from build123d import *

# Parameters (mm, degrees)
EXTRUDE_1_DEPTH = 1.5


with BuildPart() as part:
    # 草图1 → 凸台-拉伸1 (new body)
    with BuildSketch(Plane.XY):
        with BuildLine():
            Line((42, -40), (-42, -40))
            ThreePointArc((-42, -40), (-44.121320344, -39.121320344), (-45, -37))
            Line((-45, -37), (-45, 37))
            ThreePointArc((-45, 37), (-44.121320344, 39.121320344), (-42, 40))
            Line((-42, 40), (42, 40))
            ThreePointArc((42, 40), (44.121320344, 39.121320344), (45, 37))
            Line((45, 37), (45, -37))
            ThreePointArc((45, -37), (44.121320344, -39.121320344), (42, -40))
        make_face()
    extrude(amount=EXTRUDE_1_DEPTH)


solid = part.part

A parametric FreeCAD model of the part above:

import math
import FreeCAD as App
import Part
import Sketcher
from FreeCAD import Vector
Q = App.Units.Quantity

doc = App.newDocument("Part")
body = doc.addObject("PartDesign::Body", "Body")

sketch1 = doc.addObject("Sketcher::SketchObject", "Sketch")
body.addObject(sketch1)
sketch1.AttachmentSupport = (doc.XY_Plane, [""])
sketch1.MapMode = "FlatFace"
sketch1.addGeometry([
    Part.LineSegment(Vector(-42, -40, 0), Vector(42, -40, 0)),
    Part.ArcOfCircle(Part.Circle(Vector(42, -37, 0), Vector(0, 0, 1), 3), math.radians(-90), math.radians(0)),
    Part.LineSegment(Vector(45, -37, 0), Vector(45, 37, 0)),
    Part.ArcOfCircle(Part.Circle(Vector(42, 37, 0), Vector(0, 0, 1), 3), math.radians(0), math.radians(90)),
    Part.LineSegment(Vector(42, 40, 0), Vector(-42, 40, 0)),
    Part.ArcOfCircle(Part.Circle(Vector(-42, 37, 0), Vector(0, 0, 1), 3), math.radians(90), math.radians(180)),
    Part.LineSegment(Vector(-45, 37, 0), Vector(-45, -37, 0)),
    Part.ArcOfCircle(Part.Circle(Vector(-42, -37, 0), Vector(0, 0, 1), 3), math.radians(180), math.radians(270)),
], False)
sketch1.addConstraint([
    Sketcher.Constraint("Tangent", 0, 2, 1, 1),
    Sketcher.Constraint("Tangent", 1, 2, 2, 1),
    Sketcher.Constraint("Tangent", 2, 2, 3, 1),
    Sketcher.Constraint("Tangent", 3, 2, 4, 1),
    Sketcher.Constraint("Tangent", 4, 2, 5, 1),
    Sketcher.Constraint("Tangent", 5, 2, 6, 1),
    Sketcher.Constraint("Tangent", 6, 2, 7, 1),
    Sketcher.Constraint("Tangent", 7, 2, 0, 1),
    Sketcher.Constraint("Horizontal", 0),
    Sketcher.Constraint("Vertical", 2),
    Sketcher.Constraint("Horizontal", 4),
    Sketcher.Constraint("Vertical", 6),
    Sketcher.Constraint("Equal", 1, 3),
    Sketcher.Constraint("Equal", 3, 5),
    Sketcher.Constraint("Equal", 5, 7),
    Sketcher.Constraint("Symmetric", 1, 3, 5, 3, -1, 1),
    Sketcher.Constraint("Radius", 1, Q("3 mm")),
    Sketcher.Constraint("DistanceX", 0, 1, 0, 2, Q("84 mm")),
    Sketcher.Constraint("DistanceY", 2, 1, 2, 2, Q("74 mm")),
])
pad1 = doc.addObject("PartDesign::Pad", "Pad")
body.addObject(pad1)
pad1.Profile = sketch1
pad1.Length = 1.5

doc.recompute()
